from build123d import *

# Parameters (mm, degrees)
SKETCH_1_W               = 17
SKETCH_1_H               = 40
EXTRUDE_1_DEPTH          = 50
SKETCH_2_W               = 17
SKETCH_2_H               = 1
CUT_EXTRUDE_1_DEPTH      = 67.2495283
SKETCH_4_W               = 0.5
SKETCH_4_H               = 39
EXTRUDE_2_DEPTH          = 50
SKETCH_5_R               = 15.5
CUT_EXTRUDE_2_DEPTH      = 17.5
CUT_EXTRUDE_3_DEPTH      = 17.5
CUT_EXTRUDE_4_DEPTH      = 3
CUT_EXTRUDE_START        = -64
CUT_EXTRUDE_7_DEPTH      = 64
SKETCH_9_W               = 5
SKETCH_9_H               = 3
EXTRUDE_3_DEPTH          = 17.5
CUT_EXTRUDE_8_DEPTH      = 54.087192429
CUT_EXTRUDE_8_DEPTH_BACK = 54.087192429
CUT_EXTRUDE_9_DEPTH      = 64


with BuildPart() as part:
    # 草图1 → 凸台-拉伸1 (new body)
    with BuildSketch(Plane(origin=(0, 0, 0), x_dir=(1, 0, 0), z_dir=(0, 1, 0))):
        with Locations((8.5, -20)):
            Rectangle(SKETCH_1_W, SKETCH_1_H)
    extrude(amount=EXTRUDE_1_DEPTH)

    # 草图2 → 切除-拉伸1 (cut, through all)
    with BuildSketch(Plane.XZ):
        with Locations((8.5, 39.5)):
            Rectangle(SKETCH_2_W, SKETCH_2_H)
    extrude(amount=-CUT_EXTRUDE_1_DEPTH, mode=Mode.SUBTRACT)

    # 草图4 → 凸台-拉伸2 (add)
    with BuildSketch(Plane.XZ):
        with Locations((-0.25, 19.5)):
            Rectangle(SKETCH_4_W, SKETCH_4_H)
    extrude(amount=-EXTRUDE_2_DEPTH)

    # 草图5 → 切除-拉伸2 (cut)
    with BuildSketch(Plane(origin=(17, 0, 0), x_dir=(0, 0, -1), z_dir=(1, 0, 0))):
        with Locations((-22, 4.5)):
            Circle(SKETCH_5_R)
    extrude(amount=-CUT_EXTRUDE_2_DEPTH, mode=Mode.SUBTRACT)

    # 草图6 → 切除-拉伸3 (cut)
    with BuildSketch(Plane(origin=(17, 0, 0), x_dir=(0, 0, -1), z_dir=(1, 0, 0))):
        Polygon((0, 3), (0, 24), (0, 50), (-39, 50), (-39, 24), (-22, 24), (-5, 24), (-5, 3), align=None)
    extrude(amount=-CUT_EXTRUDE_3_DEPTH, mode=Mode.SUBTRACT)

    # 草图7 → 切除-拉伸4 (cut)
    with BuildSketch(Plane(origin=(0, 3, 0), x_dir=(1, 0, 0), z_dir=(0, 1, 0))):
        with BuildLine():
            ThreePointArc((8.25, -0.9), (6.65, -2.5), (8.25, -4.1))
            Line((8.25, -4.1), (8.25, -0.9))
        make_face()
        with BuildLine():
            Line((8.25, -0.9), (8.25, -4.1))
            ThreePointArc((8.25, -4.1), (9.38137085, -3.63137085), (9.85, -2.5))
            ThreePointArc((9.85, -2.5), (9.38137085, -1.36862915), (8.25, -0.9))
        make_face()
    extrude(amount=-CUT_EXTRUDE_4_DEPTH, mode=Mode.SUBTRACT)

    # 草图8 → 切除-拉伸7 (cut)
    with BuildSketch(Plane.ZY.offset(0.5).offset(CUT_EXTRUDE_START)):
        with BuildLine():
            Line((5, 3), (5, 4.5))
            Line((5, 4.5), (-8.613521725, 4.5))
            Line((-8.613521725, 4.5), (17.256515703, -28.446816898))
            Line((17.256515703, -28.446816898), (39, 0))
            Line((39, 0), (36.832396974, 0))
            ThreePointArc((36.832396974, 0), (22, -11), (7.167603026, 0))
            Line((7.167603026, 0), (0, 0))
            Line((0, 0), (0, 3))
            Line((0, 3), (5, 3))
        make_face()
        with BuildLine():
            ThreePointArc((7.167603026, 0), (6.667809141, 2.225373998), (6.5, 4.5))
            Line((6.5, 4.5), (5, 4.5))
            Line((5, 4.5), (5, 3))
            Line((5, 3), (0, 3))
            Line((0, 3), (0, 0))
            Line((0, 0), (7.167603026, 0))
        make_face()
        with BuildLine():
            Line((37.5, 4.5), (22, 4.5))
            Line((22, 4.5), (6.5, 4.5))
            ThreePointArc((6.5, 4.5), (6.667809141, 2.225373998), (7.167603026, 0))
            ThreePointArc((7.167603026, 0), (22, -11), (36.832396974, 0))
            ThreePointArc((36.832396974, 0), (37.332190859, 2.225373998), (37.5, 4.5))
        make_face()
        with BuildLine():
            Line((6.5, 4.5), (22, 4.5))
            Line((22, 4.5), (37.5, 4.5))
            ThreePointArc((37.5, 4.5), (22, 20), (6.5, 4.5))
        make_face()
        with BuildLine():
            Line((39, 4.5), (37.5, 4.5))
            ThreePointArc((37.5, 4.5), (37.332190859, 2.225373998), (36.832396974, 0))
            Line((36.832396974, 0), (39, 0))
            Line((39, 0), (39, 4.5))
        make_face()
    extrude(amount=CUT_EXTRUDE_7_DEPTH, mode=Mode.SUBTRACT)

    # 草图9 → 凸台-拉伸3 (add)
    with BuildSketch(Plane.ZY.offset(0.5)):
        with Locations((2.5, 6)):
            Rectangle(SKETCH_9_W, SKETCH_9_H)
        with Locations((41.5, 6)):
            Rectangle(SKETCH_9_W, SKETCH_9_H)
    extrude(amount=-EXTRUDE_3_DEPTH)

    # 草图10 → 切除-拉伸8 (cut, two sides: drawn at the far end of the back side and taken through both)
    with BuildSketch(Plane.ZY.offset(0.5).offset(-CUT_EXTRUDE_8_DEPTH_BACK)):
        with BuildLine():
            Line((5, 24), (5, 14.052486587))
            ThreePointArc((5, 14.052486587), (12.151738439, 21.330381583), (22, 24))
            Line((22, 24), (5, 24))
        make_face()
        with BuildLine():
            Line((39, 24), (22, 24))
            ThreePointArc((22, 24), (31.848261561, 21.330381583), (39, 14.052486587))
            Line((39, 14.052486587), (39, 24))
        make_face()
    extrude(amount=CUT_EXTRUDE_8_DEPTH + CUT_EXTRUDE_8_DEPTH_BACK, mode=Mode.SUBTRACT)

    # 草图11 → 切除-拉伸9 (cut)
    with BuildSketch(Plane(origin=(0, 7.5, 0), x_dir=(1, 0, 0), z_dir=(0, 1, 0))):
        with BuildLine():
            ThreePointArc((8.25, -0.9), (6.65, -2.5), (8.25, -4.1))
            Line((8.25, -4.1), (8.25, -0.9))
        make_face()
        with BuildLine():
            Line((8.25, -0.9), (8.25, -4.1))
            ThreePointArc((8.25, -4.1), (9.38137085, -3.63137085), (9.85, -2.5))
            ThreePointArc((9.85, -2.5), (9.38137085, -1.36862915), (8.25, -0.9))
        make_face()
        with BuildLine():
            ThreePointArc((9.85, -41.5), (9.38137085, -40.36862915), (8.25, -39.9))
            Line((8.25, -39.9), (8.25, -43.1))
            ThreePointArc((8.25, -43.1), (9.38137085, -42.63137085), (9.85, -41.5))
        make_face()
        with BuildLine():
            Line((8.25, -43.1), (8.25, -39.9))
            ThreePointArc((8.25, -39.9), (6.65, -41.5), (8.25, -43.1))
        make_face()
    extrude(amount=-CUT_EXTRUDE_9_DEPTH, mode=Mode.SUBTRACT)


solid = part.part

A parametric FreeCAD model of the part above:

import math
import FreeCAD as App
import Part
import Sketcher
from FreeCAD import Vector


def add_polygon(sketch, points):
    """Adds a closed chain of lines whose ends are joined by coincident constraints."""
    first, n = sketch.GeometryCount, len(points)
    for a, b in zip(points, points[1:] + points[:1]):
        sketch.addGeometry(Part.LineSegment(App.Vector(*a, 0), App.Vector(*b, 0)), False)
    for i in range(n):
        sketch.addConstraint(Sketcher.Constraint("Coincident", first + i, 2, first + (i + 1) % n, 1))

doc = App.newDocument("Part")
params = doc.addObject("Spreadsheet::Sheet", "Params")
for row, (alias, value) in enumerate([
    ("sketch1_width", "17 mm"),
    ("sketch1_height", "40 mm"),
    ("pad1_length", "50 mm"),
    ("sketch2_width", "17 mm"),
    ("sketch2_height", "1 mm"),
    ("sketch3_height", "39 mm"),
    ("sketch3_width", "0.5 mm"),
    ("pad2_length", "50 mm"),
    ("sketch4_diameter", "31 mm"),
    ("pocket2_length", "17.5 mm"),
    ("sketch5_width", "47 mm"),
    ("sketch5_width2", "26 mm"),
    ("sketch5_height", "39 mm"),
    ("sketch5_height2", "34 mm"),
    ("pocket3_length", "17.5 mm"),
    ("sketch6_radius", "1.6 mm"),
    ("pocket4_length", "3 mm"),
    ("sketch7_radius", "15.5 mm"),
    ("sketch7_width", "4.5 mm"),
    ("sketch7_height", "1.5 mm"),
    ("pocket5_length", "64 mm"),
    ("sketch8_width", "3 mm"),
    ("sketch8_height", "5 mm"),
    ("pad3_length", "17.5 mm"),
    ("sketch9_radius", "19.5 mm"),
    ("sketch9_height", "17 mm"),
    ("sketch10_radius", "1.6 mm"),
    ("pocket7_length", "64 mm"),
], start=1):
    params.set(f"A{row}", alias)
    params.set(f"B{row}", "=" + value)
    params.setAlias(f"B{row}", alias)

body = doc.addObject("PartDesign::Body", "Body")

# Sketch on XZ plane
sketch1 = doc.addObject("Sketcher::SketchObject", "Sketch")
body.addObject(sketch1)
sketch1.AttachmentSupport = (doc.XZ_Plane, [""])
sketch1.MapMode = "FlatFace"
add_polygon(sketch1, [(0, 0), (0, 40), (17, 40), (17, 0)])  # lines 0-3
sketch1.addConstraint([
    Sketcher.Constraint("Vertical", 0),
    Sketcher.Constraint("Horizontal", 1),
    Sketcher.Constraint("Vertical", 2),
    Sketcher.Constraint("Horizontal", 3),
    Sketcher.Constraint("Coincident", 3, 2, -1, 1),
    Sketcher.Constraint("DistanceX", 1, 1, 1, 2, 17.0),
    Sketcher.Constraint("DistanceY", 0, 1, 0, 2, 40.0),
])
sketch1.setExpression("Constraints[9]", "Params.sketch1_width")
sketch1.setExpression("Constraints[10]", "Params.sketch1_height")
pad1 = doc.addObject("PartDesign::Pad", "Pad")
body.addObject(pad1)
pad1.Profile = sketch1
pad1.setExpression("Length", "Params.pad1_length")
pad1.Reversed = True

# Sketch on XZ plane
sketch2 = doc.addObject("Sketcher::SketchObject", "Sketch001")
body.addObject(sketch2)
sketch2.AttachmentSupport = (doc.XZ_Plane, [""])
sketch2.MapMode = "FlatFace"
add_polygon(sketch2, [(0, 40), (0, 39), (17, 39), (17, 40)])  # lines 0-3
sketch2.addConstraint([
    Sketcher.Constraint("Vertical", 0),
    Sketcher.Constraint("Horizontal", 1),
    Sketcher.Constraint("Vertical", 2),
    Sketcher.Constraint("Horizontal", 3),
    Sketcher.Constraint("PointOnObject", 0, 2, -2),
    Sketcher.Constraint("DistanceX", 1, 1, 1, 2, 17.0),
    Sketcher.Constraint("DistanceY", 0, 2, 0, 1, 1.0),
    Sketcher.Constraint("DistanceY", -1, 1, 0, 2, 39.0),
])
sketch2.setExpression("Constraints[9]", "Params.sketch2_width")
sketch2.setExpression("Constraints[10]", "Params.sketch2_height")
pocket1 = doc.addObject("PartDesign::Pocket", "Pocket")
body.addObject(pocket1)
pocket1.Profile = sketch2
pocket1.Type = "ThroughAll"

# Sketch on XZ plane
sketch3 = doc.addObject("Sketcher::SketchObject", "Sketch002")
body.addObject(sketch3)
sketch3.AttachmentSupport = (doc.XZ_Plane, [""])
sketch3.MapMode = "FlatFace"
add_polygon(sketch3, [(-0.5, 39), (-0.5, 0), (0, 0), (0, 39)])  # lines 0-3
sketch3.addConstraint([
    Sketcher.Constraint("Vertical", 0),
    Sketcher.Constraint("Horizontal", 1),
    Sketcher.Constraint("Vertical", 2),
    Sketcher.Constraint("Horizontal", 3),
    Sketcher.Constraint("Coincident", 1, 2, -1, 1),
    Sketcher.Constraint("DistanceY", 0, 2, 0, 1, 39.0),
    Sketcher.Constraint("DistanceX", 1, 1, 1, 2, 0.5),
])
sketch3.setExpression("Constraints[9]", "Params.sketch3_height")
sketch3.setExpression("Constraints[10]", "Params.sketch3_width")
pad2 = doc.addObject("PartDesign::Pad", "Pad001")
body.addObject(pad2)
pad2.Profile = sketch3
pad2.setExpression("Length", "Params.pad2_length")
pad2.Reversed = True

# Sketch on YZ plane
sketch4 = doc.addObject("Sketcher::SketchObject", "Sketch003")
body.addObject(sketch4)
sketch4.AttachmentSupport = (doc.YZ_Plane, [""])
sketch4.MapMode = "FlatFace"
sketch4.AttachmentOffset = App.Placement(Vector(0, 0, 17), App.Rotation())
sketch4.addGeometry(Part.Circle(Vector(4, 22, 0), Vector(0, 0, 1), 16), False)
sketch4.addConstraint([
    Sketcher.Constraint("Diameter", 0, 31.0),
    Sketcher.Constraint("DistanceY", -1, 1, 0, 3, 22.0),
    Sketcher.Constraint("DistanceX", -1, 1, 0, 3, 4.5),
])
sketch4.setExpression("Constraints[0]", "Params.sketch4_diameter")
pocket2 = doc.addObject("PartDesign::Pocket", "Pocket001")
body.addObject(pocket2)
pocket2.Profile = sketch4
pocket2.setExpression("Length", "Params.pocket2_length")

# Sketch on YZ plane
sketch5 = doc.addObject("Sketcher::SketchObject", "Sketch004")
body.addObject(sketch5)
sketch5.AttachmentSupport = (doc.YZ_Plane, [""])
sketch5.MapMode = "FlatFace"
sketch5.AttachmentOffset = App.Placement(Vector(0, 0, 17), App.Rotation())
add_polygon(sketch5, [(3, 0), (50, 0), (50, 39), (24, 39), (24, 5), (3, 5)])  # lines 0-5
sketch5.addConstraint([
    Sketcher.Constraint("Horizontal", 0),
    Sketcher.Constraint("Vertical", 1),
    Sketcher.Constraint("Horizontal", 2),
    Sketcher.Constraint("Vertical", 3),
    Sketcher.Constraint("Horizontal", 4),
    Sketcher.Constraint("Vertical", 5),
    Sketcher.Constraint("PointOnObject", 0, 2, -1),
    Sketcher.Constraint("DistanceX", 0, 1, 0, 2, 47.0),
    Sketcher.Constraint("DistanceX", 2, 2, 2, 1, 26.0),
    Sketcher.Constraint("DistanceY", 1, 1, 1, 2, 39.0),
    Sketcher.Constraint("DistanceY", 3, 2, 3, 1, 34.0),
    Sketcher.Constraint("DistanceX", -1, 1, 0, 2, 50.0),
])
sketch5.setExpression("Constraints[13]", "Params.sketch5_width")
sketch5.setExpression("Constraints[14]", "Params.sketch5_width2")
sketch5.setExpression("Constraints[15]", "Params.sketch5_height")
sketch5.setExpression("Constraints[16]", "Params.sketch5_height2")
pocket3 = doc.addObject("PartDesign::Pocket", "Pocket002")
body.addObject(pocket3)
pocket3.Profile = sketch5
pocket3.setExpression("Length", "Params.pocket3_length")

# Sketch on XZ plane
sketch6 = doc.addObject("Sketcher::SketchObject", "Sketch005")
body.addObject(sketch6)
sketch6.AttachmentSupport = (doc.XZ_Plane, [""])
sketch6.MapMode = "FlatFace"
sketch6.AttachmentOffset = App.Placement(Vector(0, 0, -3), App.Rotation())
sketch6.addGeometry([
    Part.ArcOfCircle(Part.Circle(Vector(8.2, 2.5, 0), Vector(0, 0, 1), 1.6), math.radians(90), math.radians(270)),
    Part.ArcOfCircle(Part.Circle(Vector(8.2, 2.5, 0), Vector(0, 0, 1), 1.6), math.radians(0), math.radians(90)),
    Part.ArcOfCircle(Part.Circle(Vector(8.2, 2.5, 0), Vector(0, 0, 1), 1.6), math.radians(-90), math.radians(0)),
], False)
sketch6.addConstraint([
    Sketcher.Constraint("Tangent", 0, 1, 1, 2),
    Sketcher.Constraint("Tangent", 1, 1, 2, 2),
    Sketcher.Constraint("Tangent", 2, 1, 0, 2),
    Sketcher.Constraint("Horizontal", 2, 3, 1, 1),
    Sketcher.Constraint("Vertical", 2, 3, 0, 1),
    Sketcher.Constraint("Vertical", 0, 1, 2, 1),
    Sketcher.Constraint("Radius", 0, 1.6),
    Sketcher.Constraint("DistanceY", -1, 1, 0, 3, 2.5),
    Sketcher.Constraint("DistanceX", -1, 1, 0, 3, 8.25),
])
sketch6.setExpression("Constraints[6]", "Params.sketch6_radius")
pocket4 = doc.addObject("PartDesign::Pocket", "Pocket003")
body.addObject(pocket4)
pocket4.Profile = sketch6
pocket4.setExpression("Length", "Params.pocket4_length")
pocket4.Reversed = True

# Sketch on YZ plane
sketch7 = doc.addObject("Sketcher::SketchObject", "Sketch006")
body.addObject(sketch7)
sketch7.AttachmentSupport = (doc.YZ_Plane, [""])
sketch7.MapMode = "FlatFace"
sketch7.AttachmentOffset = App.Placement(Vector(0, 0, 63.5), App.Rotation())
sketch7.addGeometry([
    Part.LineSegment(Vector(4.5, -8.6, 0), Vector(-28.4, 17.3, 0)),  # 0
    Part.LineSegment(Vector(-28.4, 17.3, 0), Vector(0, 39, 0)),  # 1
    Part.LineSegment(Vector(0, 39, 0), Vector(4.5, 39, 0)),  # 2
    Part.LineSegment(Vector(4.5, 39, 0), Vector(4.5, 37.5, 0)),  # 3
    Part.ArcOfCircle(Part.Circle(Vector(4.5, 22, 0), Vector(0, 0, 1), 15.5), math.radians(-90), math.radians(90)),  # 4
    Part.LineSegment(Vector(4.5, 6.5, 0), Vector(4.5, -8.6, 0)),  # 5
], False)
sketch7.addConstraint([
    Sketcher.Constraint("Coincident", 0, 2, 1, 1),
    Sketcher.Constraint("Coincident", 1, 2, 2, 1),
    Sketcher.Constraint("Coincident", 2, 2, 3, 1),
    Sketcher.Constraint("Coincident", 3, 2, 4, 2),
    Sketcher.Constraint("Coincident", 4, 1, 5, 1),
    Sketcher.Constraint("Coincident", 5, 2, 0, 1),
    Sketcher.Constraint("Horizontal", 2),
    Sketcher.Constraint("Vertical", 3),
    Sketcher.Constraint("Vertical", 5),
    Sketcher.Constraint("PointOnObject", 1, 2, -2),
    Sketcher.Constraint("Vertical", 4, 3, 2, 2),
    Sketcher.Constraint("Vertical", 3, 2, 4, 1),
    Sketcher.Constraint("Radius", 4, 15.5),
    Sketcher.Constraint("DistanceX", 2, 1, 2, 2, 4.5),
    Sketcher.Constraint("DistanceY", 3, 2, 3, 1, 1.5),
    Sketcher.Constraint("DistanceY", -1, 1, 4, 3, 22.0),
    Sketcher.Constraint("DistanceY", 5, 2, 5, 1, 15.113522),
    Sketcher.Constraint("Distance", 0, 41.889755),
    Sketcher.Constraint("Distance", 1, 35.805035),
])
sketch7.setExpression("Constraints[12]", "Params.sketch7_radius")
sketch7.setExpression("Constraints[13]", "Params.sketch7_width")
sketch7.setExpression("Constraints[14]", "Params.sketch7_height")
pocket5 = doc.addObject("PartDesign::Pocket", "Pocket004")
body.addObject(pocket5)
pocket5.Profile = sketch7
pocket5.setExpression("Length", "Params.pocket5_length")

# Sketch on YZ plane
sketch8 = doc.addObject("Sketcher::SketchObject", "Sketch007")
body.addObject(sketch8)
sketch8.AttachmentSupport = (doc.YZ_Plane, [""])
sketch8.MapMode = "FlatFace"
sketch8.AttachmentOffset = App.Placement(Vector(0, 0, -0.5), App.Rotation())
add_polygon(sketch8, [(7.5, 0), (4.5, 0), (4.5, 5), (7.5, 5)])  # lines 0-3
add_polygon(sketch8, [(7.5, 39), (4.5, 39), (4.5, 44), (7.5, 44)])  # lines 4-7
sketch8.addConstraint([
    Sketcher.Constraint("Horizontal", 0),
    Sketcher.Constraint("Vertical", 1),
    Sketcher.Constraint("Horizontal", 2),
    Sketcher.Constraint("Vertical", 3),
    Sketcher.Constraint("Horizontal", 4),
    Sketcher.Constraint("Vertical", 5),
    Sketcher.Constraint("Horizontal", 6),
    Sketcher.Constraint("Vertical", 7),
    Sketcher.Constraint("PointOnObject", 0, 2, -1),
    Sketcher.Constraint("Vertical", 1, 2, 4, 2),
    Sketcher.Constraint("Vertical", 3, 2, 6, 2),
    Sketcher.Constraint("Equal", 3, 5),
    Sketcher.Constraint("DistanceX", 0, 2, 0, 1, 3.0),
    Sketcher.Constraint("DistanceY", 1, 1, 1, 2, 5.0),
    Sketcher.Constraint("DistanceY", -1, 1, 4, 2, 39.0),
    Sketcher.Constraint("DistanceX", -1, 1, 0, 2, 4.5),
])
sketch8.setExpression("Constraints[20]", "Params.sketch8_width")
sketch8.setExpression("Constraints[21]", "Params.sketch8_height")
pad3 = doc.addObject("PartDesign::Pad", "Pad002")
body.addObject(pad3)
pad3.Profile = sketch8
pad3.setExpression("Length", "Params.pad3_length")

# Sketch on YZ plane
sketch9 = doc.addObject("Sketcher::SketchObject", "Sketch008")
body.addObject(sketch9)
sketch9.AttachmentSupport = (doc.YZ_Plane, [""])
sketch9.MapMode = "FlatFace"
sketch9.AttachmentOffset = App.Placement(Vector(0, 0, -0.5), App.Rotation())
sketch9.addGeometry([
    Part.LineSegment(Vector(24, 5, 0), Vector(14, 5, 0)),  # 0
    Part.ArcOfCircle(Part.Circle(Vector(5, 22, 0), Vector(0, 0, 1), 19), math.radians(-61), math.radians(0)),  # 1
    Part.LineSegment(Vector(24, 22, 0), Vector(24, 5, 0)),  # 2
    Part.LineSegment(Vector(24, 39, 0), Vector(24, 22, 0)),  # 3
    Part.ArcOfCircle(Part.Circle(Vector(5, 22, 0), Vector(0, 0, 1), 19), math.radians(0), math.radians(61)),  # 4
    Part.LineSegment(Vector(14, 39, 0), Vector(24, 39, 0)),  # 5
], False)
sketch9.addConstraint([
    Sketcher.Constraint("Coincident", 0, 2, 1, 1),
    Sketcher.Constraint("Tangent", 1, 2, 2, 1),
    Sketcher.Constraint("Coincident", 2, 2, 0, 1),
    Sketcher.Constraint("Tangent", 3, 2, 4, 1),
    Sketcher.Constraint("Coincident", 4, 2, 5, 1),
    Sketcher.Constraint("Coincident", 5, 2, 3, 1),
    Sketcher.Constraint("Horizontal", 0),
    Sketcher.Constraint("Vertical", 2),
    Sketcher.Constraint("Vertical", 3),
    Sketcher.Constraint("Horizontal", 5),
    Sketcher.Constraint("Coincident", 4, 3, 1, 3),
    Sketcher.Constraint("Equal", 1, 4),
    Sketcher.Constraint("Vertical", 0, 2, 4, 2),
    Sketcher.Constraint("Radius", 1, 19.5),
    Sketcher.Constraint("DistanceY", 2, 2, 2, 1, 17.0),
    Sketcher.Constraint("DistanceY", -1, 1, 1, 3, 22.0),
    Sketcher.Constraint("DistanceX", -1, 1, 1, 2, 24.0),
])
sketch9.setExpression("Constraints[13]", "Params.sketch9_radius")
sketch9.setExpression("Constraints[14]", "Params.sketch9_height")
pocket6 = doc.addObject("PartDesign::Pocket", "Pocket005")
body.addObject(pocket6)
pocket6.Profile = sketch9
pocket6.Type = "ThroughAll"
pocket6.Midplane = True

# Sketch on XZ plane
sketch10 = doc.addObject("Sketcher::SketchObject", "Sketch009")
body.addObject(sketch10)
sketch10.AttachmentSupport = (doc.XZ_Plane, [""])
sketch10.MapMode = "FlatFace"
sketch10.AttachmentOffset = App.Placement(Vector(0, 0, -7.5), App.Rotation())
sketch10.addGeometry([
    Part.ArcOfCircle(Part.Circle(Vector(8.2, 2.5, 0), Vector(0, 0, 1), 1.6), math.radians(90), math.radians(270)),  # 0
    Part.ArcOfCircle(Part.Circle(Vector(8.2, 2.5, 0), Vector(0, 0, 1), 1.6), math.radians(0), math.radians(90)),  # 1
    Part.ArcOfCircle(Part.Circle(Vector(8.2, 2.5, 0), Vector(0, 0, 1), 1.6), math.radians(-90), math.radians(0)),  # 2
    Part.ArcOfCircle(Part.Circle(Vector(8.2, 41.5, 0), Vector(0, 0, 1), 1.6), math.radians(-90), math.radians(0)),  # 3
    Part.ArcOfCircle(Part.Circle(Vector(8.2, 41.5, 0), Vector(0, 0, 1), 1.6), math.radians(90), math.radians(270)),  # 4
    Part.ArcOfCircle(Part.Circle(Vector(8.2, 41.5, 0), Vector(0, 0, 1), 1.6), math.radians(0), math.radians(90)),  # 5
], False)
sketch10.addConstraint([
    Sketcher.Constraint("Tangent", 0, 1, 1, 2),
    Sketcher.Constraint("Tangent", 1, 1, 2, 2),
    Sketcher.Constraint("Tangent", 2, 1, 0, 2),
    Sketcher.Constraint("Tangent", 3, 1, 4, 2),
    Sketcher.Constraint("Tangent", 4, 1, 5, 2),
    Sketcher.Constraint("Tangent", 5, 1, 3, 2),
    Sketcher.Constraint("Equal", 2, 3),
    Sketcher.Constraint("Horizontal", 2, 3, 1, 1),
    Sketcher.Constraint("Horizontal", 4, 3, 5, 1),
    Sketcher.Constraint("Vertical", 2, 3, 3, 3),
    Sketcher.Constraint("Vertical", 5, 3, 0, 1),
    Sketcher.Constraint("Vertical", 0, 1, 2, 1),
    Sketcher.Constraint("Vertical", 2, 1, 3, 1),
    Sketcher.Constraint("Vertical", 3, 1, 4, 1),
    Sketcher.Constraint("Radius", 0, 1.6),
    Sketcher.Constraint("DistanceY", 0, 3, 3, 3, 39.0),
    Sketcher.Constraint("DistanceY", -1, 1, 0, 3, 2.5),
    Sketcher.Constraint("DistanceX", -1, 1, 0, 3, 8.25),
])
sketch10.setExpression("Constraints[14]", "Params.sketch10_radius")
pocket7 = doc.addObject("PartDesign::Pocket", "Pocket006")
body.addObject(pocket7)
pocket7.Profile = sketch10
pocket7.setExpression("Length", "Params.pocket7_length")
pocket7.Reversed = True

doc.recompute()
